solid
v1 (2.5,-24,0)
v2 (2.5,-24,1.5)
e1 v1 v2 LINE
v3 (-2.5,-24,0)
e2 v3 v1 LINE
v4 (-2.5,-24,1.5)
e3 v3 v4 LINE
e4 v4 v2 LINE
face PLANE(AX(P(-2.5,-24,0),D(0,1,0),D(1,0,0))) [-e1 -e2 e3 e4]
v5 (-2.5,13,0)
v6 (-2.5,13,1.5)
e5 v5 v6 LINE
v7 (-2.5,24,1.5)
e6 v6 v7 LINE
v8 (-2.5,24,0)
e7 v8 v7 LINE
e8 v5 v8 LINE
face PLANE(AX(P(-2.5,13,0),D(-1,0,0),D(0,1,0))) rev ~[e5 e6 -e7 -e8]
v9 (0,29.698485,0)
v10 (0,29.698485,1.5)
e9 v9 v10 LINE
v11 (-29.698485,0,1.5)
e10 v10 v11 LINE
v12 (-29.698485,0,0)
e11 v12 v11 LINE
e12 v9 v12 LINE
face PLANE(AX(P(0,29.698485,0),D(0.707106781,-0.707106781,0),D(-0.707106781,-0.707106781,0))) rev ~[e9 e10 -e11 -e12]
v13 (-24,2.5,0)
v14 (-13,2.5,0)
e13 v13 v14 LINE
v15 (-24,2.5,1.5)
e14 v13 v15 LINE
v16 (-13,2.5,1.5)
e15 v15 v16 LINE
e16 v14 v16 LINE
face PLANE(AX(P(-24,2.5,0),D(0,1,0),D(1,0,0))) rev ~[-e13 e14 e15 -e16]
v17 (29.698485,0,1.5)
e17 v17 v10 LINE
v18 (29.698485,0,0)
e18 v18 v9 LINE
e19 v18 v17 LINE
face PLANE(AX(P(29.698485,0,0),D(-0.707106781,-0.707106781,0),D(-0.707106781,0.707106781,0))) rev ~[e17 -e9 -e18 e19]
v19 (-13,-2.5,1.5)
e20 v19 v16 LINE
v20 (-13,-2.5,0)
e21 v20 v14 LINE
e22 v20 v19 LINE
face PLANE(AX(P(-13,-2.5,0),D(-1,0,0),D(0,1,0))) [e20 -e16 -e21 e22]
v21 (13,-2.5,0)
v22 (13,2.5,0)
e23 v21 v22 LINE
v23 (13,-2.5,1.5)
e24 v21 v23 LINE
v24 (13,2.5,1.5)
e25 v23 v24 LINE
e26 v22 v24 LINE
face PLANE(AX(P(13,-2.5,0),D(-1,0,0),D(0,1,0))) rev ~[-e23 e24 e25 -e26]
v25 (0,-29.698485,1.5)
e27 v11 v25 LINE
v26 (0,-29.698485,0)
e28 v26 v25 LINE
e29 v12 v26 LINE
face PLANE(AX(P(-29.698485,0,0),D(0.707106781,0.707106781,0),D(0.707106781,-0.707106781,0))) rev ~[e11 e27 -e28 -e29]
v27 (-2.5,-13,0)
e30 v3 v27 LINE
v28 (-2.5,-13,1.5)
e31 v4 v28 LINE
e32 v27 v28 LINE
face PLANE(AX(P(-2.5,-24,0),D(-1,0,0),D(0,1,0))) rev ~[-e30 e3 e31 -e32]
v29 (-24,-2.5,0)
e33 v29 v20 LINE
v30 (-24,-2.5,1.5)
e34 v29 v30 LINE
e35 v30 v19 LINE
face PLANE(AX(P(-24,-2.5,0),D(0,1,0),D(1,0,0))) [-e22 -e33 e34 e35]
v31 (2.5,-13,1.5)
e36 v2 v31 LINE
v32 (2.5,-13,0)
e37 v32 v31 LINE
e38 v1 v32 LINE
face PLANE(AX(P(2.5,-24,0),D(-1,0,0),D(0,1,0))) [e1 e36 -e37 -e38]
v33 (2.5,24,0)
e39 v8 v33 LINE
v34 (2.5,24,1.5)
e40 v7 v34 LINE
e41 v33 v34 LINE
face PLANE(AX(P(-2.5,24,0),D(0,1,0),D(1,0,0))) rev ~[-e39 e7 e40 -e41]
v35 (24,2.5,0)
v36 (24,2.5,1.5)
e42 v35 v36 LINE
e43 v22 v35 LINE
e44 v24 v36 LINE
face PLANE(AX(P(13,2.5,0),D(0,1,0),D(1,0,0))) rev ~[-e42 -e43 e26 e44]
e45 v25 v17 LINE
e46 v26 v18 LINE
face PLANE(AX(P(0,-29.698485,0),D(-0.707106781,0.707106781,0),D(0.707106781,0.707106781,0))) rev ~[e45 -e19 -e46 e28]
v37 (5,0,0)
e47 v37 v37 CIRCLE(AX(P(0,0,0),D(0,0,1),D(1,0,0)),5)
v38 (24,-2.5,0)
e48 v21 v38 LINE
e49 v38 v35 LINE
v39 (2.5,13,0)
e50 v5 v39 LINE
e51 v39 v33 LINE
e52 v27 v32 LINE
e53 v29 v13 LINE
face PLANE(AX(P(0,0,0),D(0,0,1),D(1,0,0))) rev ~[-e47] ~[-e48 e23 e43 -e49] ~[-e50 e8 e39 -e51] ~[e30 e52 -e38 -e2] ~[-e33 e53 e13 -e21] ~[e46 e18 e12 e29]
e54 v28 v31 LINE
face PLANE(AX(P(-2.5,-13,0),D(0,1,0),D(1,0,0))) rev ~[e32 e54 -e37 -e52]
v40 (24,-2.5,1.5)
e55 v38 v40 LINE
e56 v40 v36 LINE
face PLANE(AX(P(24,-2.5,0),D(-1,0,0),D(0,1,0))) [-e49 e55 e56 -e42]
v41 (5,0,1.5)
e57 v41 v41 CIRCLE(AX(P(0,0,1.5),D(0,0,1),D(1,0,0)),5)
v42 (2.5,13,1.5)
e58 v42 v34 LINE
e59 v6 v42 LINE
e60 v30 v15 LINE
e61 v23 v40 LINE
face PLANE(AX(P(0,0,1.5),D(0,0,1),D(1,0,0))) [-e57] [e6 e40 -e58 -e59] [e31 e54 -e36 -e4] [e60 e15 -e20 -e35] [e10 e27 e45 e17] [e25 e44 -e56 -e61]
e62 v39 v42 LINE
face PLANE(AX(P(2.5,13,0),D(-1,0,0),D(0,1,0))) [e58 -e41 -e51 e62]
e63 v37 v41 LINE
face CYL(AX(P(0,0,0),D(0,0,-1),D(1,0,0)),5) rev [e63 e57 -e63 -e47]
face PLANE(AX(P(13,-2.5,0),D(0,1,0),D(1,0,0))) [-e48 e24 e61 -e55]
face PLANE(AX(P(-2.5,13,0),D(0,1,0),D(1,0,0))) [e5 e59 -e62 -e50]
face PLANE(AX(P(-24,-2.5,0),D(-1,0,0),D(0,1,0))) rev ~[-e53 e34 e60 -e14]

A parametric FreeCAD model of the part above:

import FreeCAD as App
import Part
import Sketcher
Q = App.Units.Quantity


def add_polygon(sketch, points):
    """Adds a closed chain of lines whose ends are joined by coincident constraints."""
    first, n = sketch.GeometryCount, len(points)
    for a, b in zip(points, points[1:] + points[:1]):
        sketch.addGeometry(Part.LineSegment(App.Vector(*a, 0), App.Vector(*b, 0)), False)
    for i in range(n):
        sketch.addConstraint(Sketcher.Constraint("Coincident", first + i, 2, first + (i + 1) % n, 1))

doc = App.newDocument("Part")
body = doc.addObject("PartDesign::Body", "Body")

sketch1 = body.newObject("Sketcher::SketchObject", "Sketch")
sketch1.AttachmentSupport = (doc.getObject("XY_Plane"), [""])
sketch1.MapMode = "FlatFace"
add_polygon(sketch1, [(29.698485, 0), (0, 29.698485), (-29.698485, 0), (0, -29.698485)])
add_polygon(sketch1, [(2.5, -24), (-2.5, -24), (-2.5, -13), (2.5, -13)])
add_polygon(sketch1, [(-13, -2.5), (-24, -2.5), (-24, 2.5), (-13, 2.5)])
sketch1.addGeometry(Part.Circle(App.Vector(0, 0, 0), App.Vector(0, 0, 1), 5), False)
add_polygon(sketch1, [(24, -2.5), (13, -2.5), (13, 2.5), (24, 2.5)])
add_polygon(sketch1, [(2.5, 13), (-2.5, 13), (-2.5, 24), (2.5, 24)])
sketch1.addConstraint([
    Sketcher.Constraint("Horizontal", 4),
    Sketcher.Constraint("Vertical", 5),
    Sketcher.Constraint("Horizontal", 6),
    Sketcher.Constraint("Vertical", 7),
    Sketcher.Constraint("Horizontal", 8),
    Sketcher.Constraint("Vertical", 9),
    Sketcher.Constraint("Horizontal", 10),
    Sketcher.Constraint("Vertical", 11),
    Sketcher.Constraint("Horizontal", 13),
    Sketcher.Constraint("Vertical", 14),
    Sketcher.Constraint("Horizontal", 15),
    Sketcher.Constraint("Vertical", 16),
    Sketcher.Constraint("Horizontal", 17),
    Sketcher.Constraint("Vertical", 18),
    Sketcher.Constraint("Horizontal", 19),
    Sketcher.Constraint("Vertical", 20),
    Sketcher.Constraint("Coincident", 12, 3, -1, 1),
    Sketcher.Constraint("Symmetric", 0, 2, 2, 2, -1, 1),
    Sketcher.Constraint("Symmetric", 1, 2, 3, 2, -1, 1),
    Sketcher.Constraint("Symmetric", 10, 2, 13, 2, -1, 1),
    Sketcher.Constraint("Symmetric", 8, 2, 15, 2, -1, 1),
    Sketcher.Constraint("Symmetric", 6, 2, 17, 2, -1, 1),
    Sketcher.Constraint("Symmetric", 4, 2, 19, 2, -1, 1),
    Sketcher.Constraint("PointOnObject", 0, 2, -2),
    Sketcher.Constraint("PointOnObject", 1, 2, -1),
    Sketcher.Constraint("Perpendicular", 0, 1),
    Sketcher.Constraint("Horizontal", 11, 2, 13, 2),
    Sketcher.Constraint("Vertical", 5, 2, 17, 2),
    Sketcher.Constraint("Equal", 15, 5),
    Sketcher.Constraint("Equal", 19, 9),
    Sketcher.Constraint("Diameter", 12, Q("10 mm")),
    Sketcher.Constraint("DistanceX", 4, 2, 4, 1, Q("5 mm")),
    Sketcher.Constraint("DistanceX", 8, 2, 8, 1, Q("11 mm")),
    Sketcher.Constraint("Distance", 0, Q("42 mm")),
    Sketcher.Constraint("DistanceY", 4, 2, -1, 1, Q("24 mm")),
    Sketcher.Constraint("DistanceX", 8, 2, -1, 1, Q("24 mm")),
])
pad1 = body.newObject("PartDesign::Pad", "Pad")
pad1.Profile = sketch1
pad1.Length = 1.5

doc.recompute()
